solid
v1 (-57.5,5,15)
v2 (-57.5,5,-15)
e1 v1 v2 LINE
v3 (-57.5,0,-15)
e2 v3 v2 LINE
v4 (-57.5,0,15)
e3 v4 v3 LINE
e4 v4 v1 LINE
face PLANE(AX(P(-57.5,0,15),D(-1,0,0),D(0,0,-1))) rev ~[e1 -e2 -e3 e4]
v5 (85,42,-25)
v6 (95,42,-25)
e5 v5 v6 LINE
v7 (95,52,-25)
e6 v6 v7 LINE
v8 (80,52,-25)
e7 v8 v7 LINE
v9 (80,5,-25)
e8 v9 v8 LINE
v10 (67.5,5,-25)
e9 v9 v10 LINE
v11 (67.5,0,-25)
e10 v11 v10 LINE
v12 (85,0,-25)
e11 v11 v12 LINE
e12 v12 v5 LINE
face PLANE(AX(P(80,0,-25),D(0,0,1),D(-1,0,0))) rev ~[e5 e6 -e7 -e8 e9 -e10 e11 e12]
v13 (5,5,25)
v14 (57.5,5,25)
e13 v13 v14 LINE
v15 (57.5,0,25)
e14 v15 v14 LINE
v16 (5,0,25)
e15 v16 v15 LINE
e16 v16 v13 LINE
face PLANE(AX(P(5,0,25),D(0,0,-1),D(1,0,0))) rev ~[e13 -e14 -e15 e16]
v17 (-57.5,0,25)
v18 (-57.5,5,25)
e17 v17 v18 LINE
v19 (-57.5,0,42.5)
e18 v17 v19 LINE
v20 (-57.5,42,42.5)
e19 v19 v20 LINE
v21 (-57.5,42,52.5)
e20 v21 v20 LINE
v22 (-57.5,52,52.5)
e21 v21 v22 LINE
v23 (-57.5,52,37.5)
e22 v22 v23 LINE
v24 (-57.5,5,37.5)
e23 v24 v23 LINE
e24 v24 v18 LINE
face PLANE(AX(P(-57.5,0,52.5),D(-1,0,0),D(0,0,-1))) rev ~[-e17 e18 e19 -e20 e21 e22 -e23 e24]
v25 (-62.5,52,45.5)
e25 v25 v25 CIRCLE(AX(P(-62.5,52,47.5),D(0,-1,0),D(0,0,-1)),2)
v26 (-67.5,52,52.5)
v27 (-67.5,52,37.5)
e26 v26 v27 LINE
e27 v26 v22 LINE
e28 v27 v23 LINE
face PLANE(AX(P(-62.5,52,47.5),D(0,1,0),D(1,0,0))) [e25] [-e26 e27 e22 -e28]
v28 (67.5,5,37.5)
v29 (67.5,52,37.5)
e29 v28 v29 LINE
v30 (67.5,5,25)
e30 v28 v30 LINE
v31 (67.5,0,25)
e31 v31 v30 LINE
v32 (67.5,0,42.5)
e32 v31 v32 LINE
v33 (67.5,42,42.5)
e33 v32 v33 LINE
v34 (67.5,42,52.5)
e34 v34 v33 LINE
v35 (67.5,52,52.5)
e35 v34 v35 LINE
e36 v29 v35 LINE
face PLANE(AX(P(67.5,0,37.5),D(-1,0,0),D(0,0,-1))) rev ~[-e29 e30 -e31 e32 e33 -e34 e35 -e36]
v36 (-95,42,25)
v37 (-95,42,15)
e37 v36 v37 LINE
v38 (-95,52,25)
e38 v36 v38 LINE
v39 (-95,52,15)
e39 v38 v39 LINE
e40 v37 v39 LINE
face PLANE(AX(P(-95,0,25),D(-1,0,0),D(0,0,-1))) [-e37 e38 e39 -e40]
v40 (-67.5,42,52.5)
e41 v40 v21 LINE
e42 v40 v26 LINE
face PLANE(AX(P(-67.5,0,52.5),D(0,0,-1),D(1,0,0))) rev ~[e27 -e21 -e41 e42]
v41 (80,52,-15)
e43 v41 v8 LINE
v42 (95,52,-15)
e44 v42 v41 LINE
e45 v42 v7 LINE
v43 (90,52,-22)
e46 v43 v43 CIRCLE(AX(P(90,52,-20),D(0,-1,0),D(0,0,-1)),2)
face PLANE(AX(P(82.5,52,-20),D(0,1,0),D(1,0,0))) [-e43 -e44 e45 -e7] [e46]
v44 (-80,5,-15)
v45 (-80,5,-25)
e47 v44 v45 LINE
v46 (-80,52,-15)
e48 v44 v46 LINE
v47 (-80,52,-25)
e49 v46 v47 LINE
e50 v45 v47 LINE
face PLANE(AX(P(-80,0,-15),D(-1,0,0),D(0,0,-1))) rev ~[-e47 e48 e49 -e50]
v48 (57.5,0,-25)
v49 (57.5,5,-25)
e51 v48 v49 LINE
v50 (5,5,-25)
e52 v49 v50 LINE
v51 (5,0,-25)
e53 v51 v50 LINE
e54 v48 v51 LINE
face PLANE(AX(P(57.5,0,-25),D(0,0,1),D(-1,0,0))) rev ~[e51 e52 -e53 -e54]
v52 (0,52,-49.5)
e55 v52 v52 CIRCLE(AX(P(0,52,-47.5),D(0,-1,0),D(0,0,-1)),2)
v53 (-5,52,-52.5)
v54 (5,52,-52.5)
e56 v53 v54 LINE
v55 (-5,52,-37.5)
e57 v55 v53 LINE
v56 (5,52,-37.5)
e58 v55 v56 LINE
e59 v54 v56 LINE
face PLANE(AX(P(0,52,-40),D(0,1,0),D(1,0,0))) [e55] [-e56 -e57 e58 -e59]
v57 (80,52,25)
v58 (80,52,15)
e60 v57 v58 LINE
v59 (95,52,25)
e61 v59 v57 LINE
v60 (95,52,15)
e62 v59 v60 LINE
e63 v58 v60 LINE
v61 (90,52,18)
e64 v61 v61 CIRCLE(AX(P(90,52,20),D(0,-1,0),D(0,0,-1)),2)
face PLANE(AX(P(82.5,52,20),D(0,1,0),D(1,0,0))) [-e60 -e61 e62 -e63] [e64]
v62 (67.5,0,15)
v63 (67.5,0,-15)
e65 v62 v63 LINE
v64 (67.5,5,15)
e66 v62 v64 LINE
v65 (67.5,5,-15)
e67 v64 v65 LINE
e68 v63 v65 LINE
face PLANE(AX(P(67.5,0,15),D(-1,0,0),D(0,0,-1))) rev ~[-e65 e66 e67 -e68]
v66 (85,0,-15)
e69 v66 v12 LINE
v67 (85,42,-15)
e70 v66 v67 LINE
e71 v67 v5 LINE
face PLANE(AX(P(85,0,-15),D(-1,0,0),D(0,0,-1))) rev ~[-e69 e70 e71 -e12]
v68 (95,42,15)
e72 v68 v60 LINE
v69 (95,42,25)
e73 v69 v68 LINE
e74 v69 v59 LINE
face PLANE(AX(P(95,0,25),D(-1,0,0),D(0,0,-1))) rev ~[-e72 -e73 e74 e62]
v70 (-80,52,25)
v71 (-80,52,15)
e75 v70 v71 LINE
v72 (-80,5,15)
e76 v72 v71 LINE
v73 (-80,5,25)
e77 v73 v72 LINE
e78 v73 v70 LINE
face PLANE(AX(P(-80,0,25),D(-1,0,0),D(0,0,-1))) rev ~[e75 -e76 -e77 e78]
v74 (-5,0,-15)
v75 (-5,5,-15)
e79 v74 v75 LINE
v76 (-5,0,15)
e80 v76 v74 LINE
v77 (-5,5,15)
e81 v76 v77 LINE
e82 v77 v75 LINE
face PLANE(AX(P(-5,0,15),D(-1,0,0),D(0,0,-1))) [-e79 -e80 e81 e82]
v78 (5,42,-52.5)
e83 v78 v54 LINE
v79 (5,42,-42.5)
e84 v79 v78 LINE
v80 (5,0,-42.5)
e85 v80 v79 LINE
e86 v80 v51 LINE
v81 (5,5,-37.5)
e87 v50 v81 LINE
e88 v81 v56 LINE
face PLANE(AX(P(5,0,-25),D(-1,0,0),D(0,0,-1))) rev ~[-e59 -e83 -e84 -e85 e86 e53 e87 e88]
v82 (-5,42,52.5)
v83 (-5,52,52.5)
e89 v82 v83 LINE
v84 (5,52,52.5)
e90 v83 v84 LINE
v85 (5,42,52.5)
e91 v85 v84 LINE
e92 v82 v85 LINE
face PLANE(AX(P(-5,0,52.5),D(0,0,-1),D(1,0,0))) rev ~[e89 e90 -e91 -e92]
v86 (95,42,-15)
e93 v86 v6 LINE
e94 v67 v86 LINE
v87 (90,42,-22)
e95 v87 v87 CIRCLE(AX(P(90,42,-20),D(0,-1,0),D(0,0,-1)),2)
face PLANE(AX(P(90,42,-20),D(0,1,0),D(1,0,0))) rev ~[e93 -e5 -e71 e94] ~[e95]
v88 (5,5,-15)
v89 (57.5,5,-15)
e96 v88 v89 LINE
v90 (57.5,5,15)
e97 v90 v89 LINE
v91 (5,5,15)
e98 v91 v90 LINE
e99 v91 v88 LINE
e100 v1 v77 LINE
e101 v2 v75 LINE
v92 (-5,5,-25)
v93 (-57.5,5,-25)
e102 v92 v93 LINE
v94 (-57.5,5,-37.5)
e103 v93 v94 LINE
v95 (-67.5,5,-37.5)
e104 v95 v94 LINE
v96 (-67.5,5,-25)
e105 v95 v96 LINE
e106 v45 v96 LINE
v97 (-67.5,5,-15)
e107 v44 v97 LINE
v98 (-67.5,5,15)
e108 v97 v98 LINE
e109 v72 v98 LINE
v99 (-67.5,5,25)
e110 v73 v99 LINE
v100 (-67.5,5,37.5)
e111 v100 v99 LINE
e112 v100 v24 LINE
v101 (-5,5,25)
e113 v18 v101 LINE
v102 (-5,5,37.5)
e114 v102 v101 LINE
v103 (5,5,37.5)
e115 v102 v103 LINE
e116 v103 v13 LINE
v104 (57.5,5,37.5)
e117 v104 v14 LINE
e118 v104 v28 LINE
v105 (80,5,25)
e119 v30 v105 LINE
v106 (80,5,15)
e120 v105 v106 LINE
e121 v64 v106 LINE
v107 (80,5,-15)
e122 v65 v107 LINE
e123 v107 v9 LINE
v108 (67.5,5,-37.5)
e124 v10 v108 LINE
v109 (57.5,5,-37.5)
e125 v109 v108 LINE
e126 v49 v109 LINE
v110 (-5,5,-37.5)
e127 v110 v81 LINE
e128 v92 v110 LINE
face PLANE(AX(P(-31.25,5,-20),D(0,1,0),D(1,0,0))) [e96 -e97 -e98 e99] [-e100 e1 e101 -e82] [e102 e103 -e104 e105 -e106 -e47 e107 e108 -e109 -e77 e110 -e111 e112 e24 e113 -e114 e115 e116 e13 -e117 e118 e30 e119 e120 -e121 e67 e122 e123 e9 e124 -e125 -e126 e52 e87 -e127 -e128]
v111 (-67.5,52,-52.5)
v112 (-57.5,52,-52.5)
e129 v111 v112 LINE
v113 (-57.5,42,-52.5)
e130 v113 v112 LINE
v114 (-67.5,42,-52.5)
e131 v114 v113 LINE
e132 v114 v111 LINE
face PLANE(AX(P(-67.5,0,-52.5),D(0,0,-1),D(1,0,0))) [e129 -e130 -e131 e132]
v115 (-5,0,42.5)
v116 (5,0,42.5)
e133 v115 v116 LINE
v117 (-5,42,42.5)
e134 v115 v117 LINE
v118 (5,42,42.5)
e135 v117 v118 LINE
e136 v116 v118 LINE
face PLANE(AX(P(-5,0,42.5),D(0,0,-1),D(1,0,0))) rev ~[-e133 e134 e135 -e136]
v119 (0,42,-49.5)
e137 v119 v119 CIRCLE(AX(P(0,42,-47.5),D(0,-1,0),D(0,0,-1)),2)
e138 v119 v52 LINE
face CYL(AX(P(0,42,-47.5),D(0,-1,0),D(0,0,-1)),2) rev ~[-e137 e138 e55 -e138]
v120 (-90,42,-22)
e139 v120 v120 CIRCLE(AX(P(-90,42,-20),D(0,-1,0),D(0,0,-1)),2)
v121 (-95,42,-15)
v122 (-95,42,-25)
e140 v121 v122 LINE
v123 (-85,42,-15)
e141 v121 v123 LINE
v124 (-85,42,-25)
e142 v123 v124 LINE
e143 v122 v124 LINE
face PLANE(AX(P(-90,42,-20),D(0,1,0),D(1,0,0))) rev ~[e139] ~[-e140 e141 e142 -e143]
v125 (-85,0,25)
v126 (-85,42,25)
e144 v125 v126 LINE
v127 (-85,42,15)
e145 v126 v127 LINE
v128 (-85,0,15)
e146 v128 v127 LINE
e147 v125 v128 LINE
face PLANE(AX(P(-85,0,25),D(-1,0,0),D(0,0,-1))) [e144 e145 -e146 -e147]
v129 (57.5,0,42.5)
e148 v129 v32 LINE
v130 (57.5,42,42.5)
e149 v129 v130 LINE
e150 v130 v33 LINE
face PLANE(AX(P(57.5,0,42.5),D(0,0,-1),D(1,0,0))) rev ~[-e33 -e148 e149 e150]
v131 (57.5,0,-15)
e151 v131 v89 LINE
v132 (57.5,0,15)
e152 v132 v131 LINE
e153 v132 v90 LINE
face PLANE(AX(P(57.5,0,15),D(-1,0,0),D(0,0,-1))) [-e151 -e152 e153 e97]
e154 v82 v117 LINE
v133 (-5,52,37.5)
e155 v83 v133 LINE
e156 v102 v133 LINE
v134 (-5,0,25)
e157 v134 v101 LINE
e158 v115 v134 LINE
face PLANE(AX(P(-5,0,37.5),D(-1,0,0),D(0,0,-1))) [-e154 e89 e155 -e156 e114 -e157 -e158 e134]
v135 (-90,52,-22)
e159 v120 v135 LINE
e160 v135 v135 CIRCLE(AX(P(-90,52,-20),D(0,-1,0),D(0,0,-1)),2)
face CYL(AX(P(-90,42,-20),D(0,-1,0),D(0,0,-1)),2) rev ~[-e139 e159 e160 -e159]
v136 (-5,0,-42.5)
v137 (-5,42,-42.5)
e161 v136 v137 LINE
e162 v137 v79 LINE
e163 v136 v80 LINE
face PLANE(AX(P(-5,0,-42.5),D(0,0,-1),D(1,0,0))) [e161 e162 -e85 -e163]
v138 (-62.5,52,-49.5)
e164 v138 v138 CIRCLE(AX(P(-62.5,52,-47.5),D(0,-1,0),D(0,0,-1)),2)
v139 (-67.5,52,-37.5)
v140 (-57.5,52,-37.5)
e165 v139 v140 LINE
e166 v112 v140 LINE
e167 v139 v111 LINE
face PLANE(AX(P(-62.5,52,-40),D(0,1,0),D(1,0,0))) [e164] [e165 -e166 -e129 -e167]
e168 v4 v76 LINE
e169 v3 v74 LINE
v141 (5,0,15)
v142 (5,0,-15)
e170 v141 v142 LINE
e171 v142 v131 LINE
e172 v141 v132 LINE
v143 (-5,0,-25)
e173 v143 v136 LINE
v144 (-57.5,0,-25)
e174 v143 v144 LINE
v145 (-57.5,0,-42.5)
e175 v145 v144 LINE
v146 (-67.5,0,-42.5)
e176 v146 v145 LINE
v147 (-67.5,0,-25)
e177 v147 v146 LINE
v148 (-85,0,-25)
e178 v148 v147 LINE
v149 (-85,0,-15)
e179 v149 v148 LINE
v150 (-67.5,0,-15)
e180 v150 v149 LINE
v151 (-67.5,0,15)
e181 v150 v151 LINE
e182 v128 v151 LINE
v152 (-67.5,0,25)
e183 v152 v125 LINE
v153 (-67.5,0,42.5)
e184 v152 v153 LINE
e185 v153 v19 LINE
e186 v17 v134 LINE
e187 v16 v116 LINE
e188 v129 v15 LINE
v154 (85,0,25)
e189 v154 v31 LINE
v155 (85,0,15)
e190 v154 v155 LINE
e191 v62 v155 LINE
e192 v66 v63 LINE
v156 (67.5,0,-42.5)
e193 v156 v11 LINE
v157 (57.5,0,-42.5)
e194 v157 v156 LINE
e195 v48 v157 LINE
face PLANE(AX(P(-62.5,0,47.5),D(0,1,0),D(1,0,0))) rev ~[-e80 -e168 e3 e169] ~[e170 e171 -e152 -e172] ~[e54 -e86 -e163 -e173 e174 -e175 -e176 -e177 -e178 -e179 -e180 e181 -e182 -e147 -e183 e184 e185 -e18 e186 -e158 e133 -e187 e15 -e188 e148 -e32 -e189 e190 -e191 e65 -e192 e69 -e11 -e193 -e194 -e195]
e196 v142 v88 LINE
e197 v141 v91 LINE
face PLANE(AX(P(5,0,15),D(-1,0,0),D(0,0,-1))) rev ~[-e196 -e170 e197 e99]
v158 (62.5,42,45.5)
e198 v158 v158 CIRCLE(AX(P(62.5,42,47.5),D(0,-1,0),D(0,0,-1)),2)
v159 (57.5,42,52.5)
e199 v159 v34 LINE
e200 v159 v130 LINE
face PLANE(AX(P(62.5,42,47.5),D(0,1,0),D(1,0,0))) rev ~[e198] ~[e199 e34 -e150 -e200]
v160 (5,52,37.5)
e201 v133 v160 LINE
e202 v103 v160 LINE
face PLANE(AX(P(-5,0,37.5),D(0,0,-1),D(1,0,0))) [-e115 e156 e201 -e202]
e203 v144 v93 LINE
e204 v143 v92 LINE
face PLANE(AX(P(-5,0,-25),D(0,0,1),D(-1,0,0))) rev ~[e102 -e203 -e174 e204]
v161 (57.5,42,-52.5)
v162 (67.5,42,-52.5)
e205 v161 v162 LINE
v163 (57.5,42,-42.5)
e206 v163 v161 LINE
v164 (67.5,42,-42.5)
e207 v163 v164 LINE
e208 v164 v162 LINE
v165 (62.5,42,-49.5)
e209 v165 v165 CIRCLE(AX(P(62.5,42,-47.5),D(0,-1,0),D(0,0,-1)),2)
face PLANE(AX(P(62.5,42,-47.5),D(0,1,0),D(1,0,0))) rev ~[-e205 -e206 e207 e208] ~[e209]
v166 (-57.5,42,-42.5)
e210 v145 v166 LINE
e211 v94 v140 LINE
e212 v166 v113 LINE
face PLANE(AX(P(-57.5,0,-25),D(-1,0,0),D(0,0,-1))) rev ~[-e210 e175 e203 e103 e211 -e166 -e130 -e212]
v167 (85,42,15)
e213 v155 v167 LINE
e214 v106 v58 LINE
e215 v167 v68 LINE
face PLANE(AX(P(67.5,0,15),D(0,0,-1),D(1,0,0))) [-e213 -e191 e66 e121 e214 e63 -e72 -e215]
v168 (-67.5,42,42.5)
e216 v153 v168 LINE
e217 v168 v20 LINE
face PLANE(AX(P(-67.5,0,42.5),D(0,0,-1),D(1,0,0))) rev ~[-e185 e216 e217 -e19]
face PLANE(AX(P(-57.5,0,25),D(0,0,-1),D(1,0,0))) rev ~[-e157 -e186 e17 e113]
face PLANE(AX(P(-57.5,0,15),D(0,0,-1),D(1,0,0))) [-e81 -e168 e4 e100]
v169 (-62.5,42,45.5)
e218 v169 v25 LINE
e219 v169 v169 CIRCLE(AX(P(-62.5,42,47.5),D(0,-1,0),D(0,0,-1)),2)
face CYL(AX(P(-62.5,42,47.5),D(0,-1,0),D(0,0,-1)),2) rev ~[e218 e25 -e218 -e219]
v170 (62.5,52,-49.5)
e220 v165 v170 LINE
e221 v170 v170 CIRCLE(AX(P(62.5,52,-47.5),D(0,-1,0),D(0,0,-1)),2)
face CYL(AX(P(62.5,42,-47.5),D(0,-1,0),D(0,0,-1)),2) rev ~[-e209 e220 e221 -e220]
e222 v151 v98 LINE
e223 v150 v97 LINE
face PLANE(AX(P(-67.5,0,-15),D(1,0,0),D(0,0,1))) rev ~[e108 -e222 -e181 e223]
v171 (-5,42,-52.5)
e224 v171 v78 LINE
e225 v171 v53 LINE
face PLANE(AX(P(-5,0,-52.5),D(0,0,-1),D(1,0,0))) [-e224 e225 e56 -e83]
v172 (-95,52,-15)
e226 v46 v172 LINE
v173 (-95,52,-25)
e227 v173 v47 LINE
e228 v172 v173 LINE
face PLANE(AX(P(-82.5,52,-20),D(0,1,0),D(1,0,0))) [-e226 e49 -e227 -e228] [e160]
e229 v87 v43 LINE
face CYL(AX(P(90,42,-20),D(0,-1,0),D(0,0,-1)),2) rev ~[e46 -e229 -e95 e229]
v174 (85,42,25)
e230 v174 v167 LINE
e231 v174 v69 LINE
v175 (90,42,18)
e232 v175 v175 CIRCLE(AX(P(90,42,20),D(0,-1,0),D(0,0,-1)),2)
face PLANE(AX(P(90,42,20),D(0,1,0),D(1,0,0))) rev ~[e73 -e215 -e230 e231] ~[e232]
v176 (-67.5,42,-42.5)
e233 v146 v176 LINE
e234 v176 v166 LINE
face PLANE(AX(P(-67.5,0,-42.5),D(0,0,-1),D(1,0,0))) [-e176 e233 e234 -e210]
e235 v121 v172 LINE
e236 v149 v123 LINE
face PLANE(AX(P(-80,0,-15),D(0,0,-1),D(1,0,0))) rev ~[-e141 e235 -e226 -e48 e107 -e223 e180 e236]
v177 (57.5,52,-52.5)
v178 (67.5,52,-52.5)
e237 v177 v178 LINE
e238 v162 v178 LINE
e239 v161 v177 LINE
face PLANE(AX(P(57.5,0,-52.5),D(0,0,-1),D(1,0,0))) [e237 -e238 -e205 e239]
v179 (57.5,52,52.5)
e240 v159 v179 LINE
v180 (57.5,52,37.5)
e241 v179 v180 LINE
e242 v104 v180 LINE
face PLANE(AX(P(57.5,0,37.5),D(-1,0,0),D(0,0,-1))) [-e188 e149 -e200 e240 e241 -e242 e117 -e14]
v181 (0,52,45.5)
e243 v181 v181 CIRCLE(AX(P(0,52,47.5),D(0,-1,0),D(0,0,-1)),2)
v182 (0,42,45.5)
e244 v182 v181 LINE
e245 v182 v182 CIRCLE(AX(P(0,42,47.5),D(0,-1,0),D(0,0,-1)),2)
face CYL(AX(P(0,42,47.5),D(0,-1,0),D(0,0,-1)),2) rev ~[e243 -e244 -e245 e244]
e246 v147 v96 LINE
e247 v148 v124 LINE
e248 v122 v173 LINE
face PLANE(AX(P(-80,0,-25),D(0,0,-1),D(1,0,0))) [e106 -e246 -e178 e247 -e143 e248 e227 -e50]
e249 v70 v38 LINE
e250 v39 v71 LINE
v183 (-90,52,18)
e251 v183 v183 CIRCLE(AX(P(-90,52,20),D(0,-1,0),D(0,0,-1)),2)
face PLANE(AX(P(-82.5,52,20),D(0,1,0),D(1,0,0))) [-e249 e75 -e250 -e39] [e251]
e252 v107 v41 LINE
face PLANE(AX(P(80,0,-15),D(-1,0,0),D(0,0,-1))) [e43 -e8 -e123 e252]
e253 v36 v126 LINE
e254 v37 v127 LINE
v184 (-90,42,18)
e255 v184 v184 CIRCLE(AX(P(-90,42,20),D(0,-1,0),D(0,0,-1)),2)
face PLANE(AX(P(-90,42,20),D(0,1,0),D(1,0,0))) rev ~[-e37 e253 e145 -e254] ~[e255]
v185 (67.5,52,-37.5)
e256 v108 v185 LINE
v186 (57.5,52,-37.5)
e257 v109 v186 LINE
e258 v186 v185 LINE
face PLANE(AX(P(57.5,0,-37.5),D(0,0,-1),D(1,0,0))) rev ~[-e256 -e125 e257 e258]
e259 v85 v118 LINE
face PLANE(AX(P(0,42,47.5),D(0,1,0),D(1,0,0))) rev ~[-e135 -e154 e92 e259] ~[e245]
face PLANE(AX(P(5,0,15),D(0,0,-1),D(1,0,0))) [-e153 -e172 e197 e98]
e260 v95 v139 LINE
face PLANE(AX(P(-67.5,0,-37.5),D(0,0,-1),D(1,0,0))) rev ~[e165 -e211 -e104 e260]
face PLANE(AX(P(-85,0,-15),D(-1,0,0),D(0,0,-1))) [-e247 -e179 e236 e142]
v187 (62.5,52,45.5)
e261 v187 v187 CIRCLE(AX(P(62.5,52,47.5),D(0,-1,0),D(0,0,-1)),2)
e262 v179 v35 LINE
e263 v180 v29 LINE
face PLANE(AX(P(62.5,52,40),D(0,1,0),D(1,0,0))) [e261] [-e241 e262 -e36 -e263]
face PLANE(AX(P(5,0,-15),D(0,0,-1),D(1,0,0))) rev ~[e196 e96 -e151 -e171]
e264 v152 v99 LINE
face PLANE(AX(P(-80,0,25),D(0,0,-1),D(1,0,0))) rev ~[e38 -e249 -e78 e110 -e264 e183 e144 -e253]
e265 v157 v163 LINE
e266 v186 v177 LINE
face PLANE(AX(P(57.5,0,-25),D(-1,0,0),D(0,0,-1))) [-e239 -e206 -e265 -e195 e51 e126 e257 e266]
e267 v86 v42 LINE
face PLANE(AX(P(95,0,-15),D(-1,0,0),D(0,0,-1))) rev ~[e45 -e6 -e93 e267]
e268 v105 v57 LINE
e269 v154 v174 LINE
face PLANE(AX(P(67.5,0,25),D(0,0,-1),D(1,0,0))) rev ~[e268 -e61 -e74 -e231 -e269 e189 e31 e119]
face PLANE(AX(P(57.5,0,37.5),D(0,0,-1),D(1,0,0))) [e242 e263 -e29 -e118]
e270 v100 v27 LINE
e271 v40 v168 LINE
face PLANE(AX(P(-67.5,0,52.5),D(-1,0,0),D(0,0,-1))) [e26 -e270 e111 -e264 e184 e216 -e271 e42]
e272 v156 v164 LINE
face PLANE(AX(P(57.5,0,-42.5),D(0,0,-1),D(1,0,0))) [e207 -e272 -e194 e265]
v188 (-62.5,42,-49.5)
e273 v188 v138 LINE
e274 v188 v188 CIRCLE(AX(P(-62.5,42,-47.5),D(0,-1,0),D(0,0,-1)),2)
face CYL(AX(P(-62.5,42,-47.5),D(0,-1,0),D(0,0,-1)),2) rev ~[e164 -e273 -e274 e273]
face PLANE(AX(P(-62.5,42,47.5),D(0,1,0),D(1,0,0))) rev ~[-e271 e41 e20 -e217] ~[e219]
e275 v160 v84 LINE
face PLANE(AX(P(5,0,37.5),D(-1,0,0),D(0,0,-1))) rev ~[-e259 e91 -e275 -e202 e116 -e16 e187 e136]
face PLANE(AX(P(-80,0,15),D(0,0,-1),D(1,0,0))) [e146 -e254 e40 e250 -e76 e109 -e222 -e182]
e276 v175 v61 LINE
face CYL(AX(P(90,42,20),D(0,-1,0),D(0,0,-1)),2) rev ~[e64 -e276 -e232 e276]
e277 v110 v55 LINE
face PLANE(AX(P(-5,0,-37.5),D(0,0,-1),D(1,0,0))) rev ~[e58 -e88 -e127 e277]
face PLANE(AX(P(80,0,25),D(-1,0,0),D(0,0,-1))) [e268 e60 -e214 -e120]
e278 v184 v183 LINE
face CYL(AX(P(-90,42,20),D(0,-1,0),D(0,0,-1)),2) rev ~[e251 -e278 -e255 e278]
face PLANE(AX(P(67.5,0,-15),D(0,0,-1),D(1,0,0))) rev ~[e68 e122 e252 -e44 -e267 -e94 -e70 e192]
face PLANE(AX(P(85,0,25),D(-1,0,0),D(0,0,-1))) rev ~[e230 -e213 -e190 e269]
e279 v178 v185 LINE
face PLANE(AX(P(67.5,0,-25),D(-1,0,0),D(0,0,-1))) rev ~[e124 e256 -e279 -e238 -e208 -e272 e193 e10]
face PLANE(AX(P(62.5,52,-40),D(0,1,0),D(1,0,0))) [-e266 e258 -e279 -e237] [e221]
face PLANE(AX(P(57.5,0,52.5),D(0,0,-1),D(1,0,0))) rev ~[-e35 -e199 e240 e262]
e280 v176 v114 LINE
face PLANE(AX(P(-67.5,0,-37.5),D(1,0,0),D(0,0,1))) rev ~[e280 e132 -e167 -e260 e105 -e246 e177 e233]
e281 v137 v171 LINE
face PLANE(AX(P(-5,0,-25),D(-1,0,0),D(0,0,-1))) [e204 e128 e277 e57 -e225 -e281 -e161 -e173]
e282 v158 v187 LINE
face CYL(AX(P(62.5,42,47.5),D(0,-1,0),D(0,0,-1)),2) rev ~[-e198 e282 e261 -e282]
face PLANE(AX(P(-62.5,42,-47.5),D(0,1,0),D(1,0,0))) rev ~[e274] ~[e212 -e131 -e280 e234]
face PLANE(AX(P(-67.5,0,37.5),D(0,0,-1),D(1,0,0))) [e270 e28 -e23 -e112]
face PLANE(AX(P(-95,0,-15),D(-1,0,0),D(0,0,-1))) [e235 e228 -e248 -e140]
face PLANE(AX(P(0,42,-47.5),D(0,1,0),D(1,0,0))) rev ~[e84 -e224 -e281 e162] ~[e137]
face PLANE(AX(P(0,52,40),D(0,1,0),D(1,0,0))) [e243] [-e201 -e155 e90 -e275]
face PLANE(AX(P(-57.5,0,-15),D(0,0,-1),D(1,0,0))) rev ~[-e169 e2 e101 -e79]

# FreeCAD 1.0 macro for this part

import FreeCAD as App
import Part
import Sketcher
from FreeCAD import Vector
Q = App.Units.Quantity


def add_polygon(sketch, points):
    """Adds a closed chain of lines whose ends are joined by coincident constraints."""
    first, n = sketch.GeometryCount, len(points)
    for a, b in zip(points, points[1:] + points[:1]):
        sketch.addGeometry(Part.LineSegment(App.Vector(*a, 0), App.Vector(*b, 0)), False)
    for i in range(n):
        sketch.addConstraint(Sketcher.Constraint("Coincident", first + i, 2, first + (i + 1) % n, 1))

doc = App.newDocument("Part")
params = doc.addObject("Spreadsheet::Sheet", "Params")
for row, (alias, value) in enumerate([
    ("sketch1_width", "10 mm"),
    ("sketch1_height", "30 mm"),
    ("sketch1_width2", "52.5 mm"),
    ("sketch1_width3", "12.5 mm"),
    ("pad1_length", "5 mm"),
    ("sketch2_width", "10 mm"),
    ("sketch2_width2", "5 mm"),
    ("pad2_length", "52 mm"),
    ("sketch3_width", "10 mm"),
    ("pad3_length", "52 mm"),
    ("sketch4_width", "10 mm"),
    ("pocket1_length", "42 mm"),
    ("sketch5_diameter", "4 mm"),
    ("pocket2_length", "10 mm"),
], start=1):
    params.set(f"A{row}", alias)
    params.set(f"B{row}", "=" + value)
    params.setAlias(f"B{row}", alias)

body = doc.addObject("PartDesign::Body", "Body")

# Sketch on XZ plane
sketch1 = body.newObject("Sketcher::SketchObject", "Sketch")
sketch1.AttachmentSupport = (doc.getObject("XZ_Plane"), [""])
sketch1.MapMode = "FlatFace"
add_polygon(sketch1, [(-5, 25), (-5, 38), (5, 38), (5, 25), (58, 25), (58, 38), (68, 38), (68, 25), (80, 25), (80, 15), (68, 15), (68, -15), (80, -15), (80, -25), (68, -25), (68, -38), (58, -38), (58, -25), (5, -25), (5, -38), (-5, -38), (-5, -25), (-58, -25), (-58, -38), (-68, -38), (-68, -25), (-80, -25), (-80, -15), (-68, -15), (-68, 15), (-80, 15), (-80, 25), (-68, 25), (-68, 38), (-58, 38), (-58, 25)])  # lines 0-35
add_polygon(sketch1, [(-5, 15), (-58, 15), (-58, -15), (-5, -15)])  # lines 36-39
add_polygon(sketch1, [(58, 15), (5, 15), (5, -15), (58, -15)])  # lines 40-43
sketch1.addConstraint(Sketcher.Constraint("Vertical", 0))
sketch1.addConstraint(Sketcher.Constraint("Horizontal", 1))
sketch1.addConstraint(Sketcher.Constraint("Vertical", 2))
sketch1.addConstraint(Sketcher.Constraint("Horizontal", 3))
sketch1.addConstraint(Sketcher.Constraint("Vertical", 4))
sketch1.addConstraint(Sketcher.Constraint("Horizontal", 5))
sketch1.addConstraint(Sketcher.Constraint("Vertical", 6))
sketch1.addConstraint(Sketcher.Constraint("Horizontal", 7))
sketch1.addConstraint(Sketcher.Constraint("Vertical", 8))
sketch1.addConstraint(Sketcher.Constraint("Horizontal", 9))
sketch1.addConstraint(Sketcher.Constraint("Vertical", 10))
sketch1.addConstraint(Sketcher.Constraint("Horizontal", 11))
sketch1.addConstraint(Sketcher.Constraint("Vertical", 12))
sketch1.addConstraint(Sketcher.Constraint("Horizontal", 13))
sketch1.addConstraint(Sketcher.Constraint("Vertical", 14))
sketch1.addConstraint(Sketcher.Constraint("Horizontal", 15))
sketch1.addConstraint(Sketcher.Constraint("Vertical", 16))
sketch1.addConstraint(Sketcher.Constraint("Horizontal", 17))
sketch1.addConstraint(Sketcher.Constraint("Vertical", 18))
sketch1.addConstraint(Sketcher.Constraint("Horizontal", 19))
sketch1.addConstraint(Sketcher.Constraint("Vertical", 20))
sketch1.addConstraint(Sketcher.Constraint("Horizontal", 21))
sketch1.addConstraint(Sketcher.Constraint("Vertical", 22))
sketch1.addConstraint(Sketcher.Constraint("Horizontal", 23))
sketch1.addConstraint(Sketcher.Constraint("Vertical", 24))
sketch1.addConstraint(Sketcher.Constraint("Horizontal", 25))
sketch1.addConstraint(Sketcher.Constraint("Vertical", 26))
sketch1.addConstraint(Sketcher.Constraint("Horizontal", 27))
sketch1.addConstraint(Sketcher.Constraint("Vertical", 28))
sketch1.addConstraint(Sketcher.Constraint("Horizontal", 29))
sketch1.addConstraint(Sketcher.Constraint("Vertical", 30))
sketch1.addConstraint(Sketcher.Constraint("Horizontal", 31))
sketch1.addConstraint(Sketcher.Constraint("Vertical", 32))
sketch1.addConstraint(Sketcher.Constraint("Horizontal", 33))
sketch1.addConstraint(Sketcher.Constraint("Vertical", 34))
sketch1.addConstraint(Sketcher.Constraint("Horizontal", 35))
sketch1.addConstraint(Sketcher.Constraint("Horizontal", 36))
sketch1.addConstraint(Sketcher.Constraint("Vertical", 37))
sketch1.addConstraint(Sketcher.Constraint("Horizontal", 38))
sketch1.addConstraint(Sketcher.Constraint("Vertical", 39))
sketch1.addConstraint(Sketcher.Constraint("Horizontal", 40))
sketch1.addConstraint(Sketcher.Constraint("Vertical", 41))
sketch1.addConstraint(Sketcher.Constraint("Horizontal", 42))
sketch1.addConstraint(Sketcher.Constraint("Vertical", 43))
sketch1.addConstraint(Sketcher.Constraint("Symmetric", 0, 2, 18, 2, -1, 1))
sketch1.addConstraint(Sketcher.Constraint("Symmetric", 2, 2, 20, 2, -1, 1))
sketch1.addConstraint(Sketcher.Constraint("Symmetric", 4, 2, 22, 2, -1, 1))
sketch1.addConstraint(Sketcher.Constraint("Symmetric", 6, 2, 24, 2, -1, 1))
sketch1.addConstraint(Sketcher.Constraint("Symmetric", 8, 2, 26, 2, -1, 1))
sketch1.addConstraint(Sketcher.Constraint("Symmetric", 10, 2, 28, 2, -1, 1))
sketch1.addConstraint(Sketcher.Constraint("Symmetric", 12, 2, 30, 2, -1, 1))
sketch1.addConstraint(Sketcher.Constraint("Symmetric", 14, 2, 32, 2, -1, 1))
sketch1.addConstraint(Sketcher.Constraint("Symmetric", 16, 2, 34, 2, -1, 1))
sketch1.addConstraint(Sketcher.Constraint("Symmetric", 38, 2, 40, 2, -1, 1))
sketch1.addConstraint(Sketcher.Constraint("Symmetric", 36, 2, 42, 2, -1, 1))
sketch1.addConstraint(Sketcher.Constraint("Symmetric", 17, 2, 20, 2, -2))
sketch1.addConstraint(Sketcher.Constraint("Symmetric", 15, 2, 22, 2, -2))
sketch1.addConstraint(Sketcher.Constraint("Symmetric", 13, 2, 24, 2, -2))
sketch1.addConstraint(Sketcher.Constraint("Symmetric", 11, 2, 26, 2, -2))
sketch1.addConstraint(Sketcher.Constraint("Horizontal", 1, 2, 4, 2))
sketch1.addConstraint(Sketcher.Constraint("Horizontal", 3, 2, 6, 2))
sketch1.addConstraint(Sketcher.Constraint("Horizontal", 29, 2, 36, 2))
sketch1.addConstraint(Sketcher.Constraint("Horizontal", 27, 2, 37, 2))
sketch1.addConstraint(Sketcher.Constraint("Vertical", 6, 2, 9, 2))
sketch1.addConstraint(Sketcher.Constraint("Vertical", 34, 2, 36, 2))
sketch1.addConstraint(Sketcher.Constraint("Vertical", 35, 2, 38, 2))
sketch1.addConstraint(Sketcher.Constraint("Equal", 1, 5))
sketch1.addConstraint(Sketcher.Constraint("Equal", 31, 0))
sketch1.addConstraint(Sketcher.Constraint("Equal", 33, 8))
sketch1.addConstraint(Sketcher.Constraint("DistanceX", 1, 1, 1, 2, Q("10 mm")))
sketch1.addConstraint(Sketcher.Constraint("DistanceY", 10, 2, 10, 1, Q("30 mm")))
sketch1.addConstraint(Sketcher.Constraint("DistanceX", 3, 1, 3, 2, Q("52.5 mm")))
sketch1.addConstraint(Sketcher.Constraint("DistanceX", 7, 1, 7, 2, Q("12.5 mm")))
sketch1.setExpression("Constraints[113]", "Params.sketch1_width")
sketch1.setExpression("Constraints[114]", "Params.sketch1_height")
sketch1.setExpression("Constraints[115]", "Params.sketch1_width2")
sketch1.setExpression("Constraints[116]", "Params.sketch1_width3")
pad1 = body.newObject("PartDesign::Pad", "Pad")
pad1.Profile = sketch1
pad1.setExpression("Length", "Params.pad1_length")
pad1.Reversed = True

# Sketch on XZ plane
sketch2 = body.newObject("Sketcher::SketchObject", "Sketch001")
sketch2.AttachmentSupport = (doc.getObject("XZ_Plane"), [""])
sketch2.MapMode = "FlatFace"
add_polygon(sketch2, [(-68, 38), (-68, 42), (-58, 42), (-58, 38)])  # lines 0-3
add_polygon(sketch2, [(-5, 38), (-5, 42), (5, 42), (5, 38)])  # lines 4-7
add_polygon(sketch2, [(58, 38), (58, 42), (68, 42), (68, 38)])  # lines 8-11
add_polygon(sketch2, [(80, 15), (80, 25), (85, 25), (85, 15)])  # lines 12-15
add_polygon(sketch2, [(80, -25), (80, -15), (85, -15), (85, -25)])  # lines 16-19
add_polygon(sketch2, [(58, -42), (58, -38), (68, -38), (68, -42)])  # lines 20-23
add_polygon(sketch2, [(-5, -42), (-5, -38), (5, -38), (5, -42)])  # lines 24-27
add_polygon(sketch2, [(-68, -42), (-68, -38), (-58, -38), (-58, -42)])  # lines 28-31
add_polygon(sketch2, [(-85, -25), (-85, -15), (-80, -15), (-80, -25)])  # lines 32-35
add_polygon(sketch2, [(-85, 15), (-85, 25), (-80, 25), (-80, 15)])  # lines 36-39
sketch2.addConstraint(Sketcher.Constraint("Vertical", 0))
sketch2.addConstraint(Sketcher.Constraint("Horizontal", 1))
sketch2.addConstraint(Sketcher.Constraint("Vertical", 2))
sketch2.addConstraint(Sketcher.Constraint("Horizontal", 3))
sketch2.addConstraint(Sketcher.Constraint("Vertical", 4))
sketch2.addConstraint(Sketcher.Constraint("Horizontal", 5))
sketch2.addConstraint(Sketcher.Constraint("Vertical", 6))
sketch2.addConstraint(Sketcher.Constraint("Horizontal", 7))
sketch2.addConstraint(Sketcher.Constraint("Vertical", 8))
sketch2.addConstraint(Sketcher.Constraint("Horizontal", 9))
sketch2.addConstraint(Sketcher.Constraint("Vertical", 10))
sketch2.addConstraint(Sketcher.Constraint("Horizontal", 11))
sketch2.addConstraint(Sketcher.Constraint("Vertical", 12))
sketch2.addConstraint(Sketcher.Constraint("Horizontal", 13))
sketch2.addConstraint(Sketcher.Constraint("Vertical", 14))
sketch2.addConstraint(Sketcher.Constraint("Horizontal", 15))
sketch2.addConstraint(Sketcher.Constraint("Vertical", 16))
sketch2.addConstraint(Sketcher.Constraint("Horizontal", 17))
sketch2.addConstraint(Sketcher.Constraint("Vertical", 18))
sketch2.addConstraint(Sketcher.Constraint("Horizontal", 19))
sketch2.addConstraint(Sketcher.Constraint("Vertical", 20))
sketch2.addConstraint(Sketcher.Constraint("Horizontal", 21))
sketch2.addConstraint(Sketcher.Constraint("Vertical", 22))
sketch2.addConstraint(Sketcher.Constraint("Horizontal", 23))
sketch2.addConstraint(Sketcher.Constraint("Vertical", 24))
sketch2.addConstraint(Sketcher.Constraint("Horizontal", 25))
sketch2.addConstraint(Sketcher.Constraint("Vertical", 26))
sketch2.addConstraint(Sketcher.Constraint("Horizontal", 27))
sketch2.addConstraint(Sketcher.Constraint("Vertical", 28))
sketch2.addConstraint(Sketcher.Constraint("Horizontal", 29))
sketch2.addConstraint(Sketcher.Constraint("Vertical", 30))
sketch2.addConstraint(Sketcher.Constraint("Horizontal", 31))
sketch2.addConstraint(Sketcher.Constraint("Vertical", 32))
sketch2.addConstraint(Sketcher.Constraint("Horizontal", 33))
sketch2.addConstraint(Sketcher.Constraint("Vertical", 34))
sketch2.addConstraint(Sketcher.Constraint("Horizontal", 35))
sketch2.addConstraint(Sketcher.Constraint("Vertical", 36))
sketch2.addConstraint(Sketcher.Constraint("Horizontal", 37))
sketch2.addConstraint(Sketcher.Constraint("Vertical", 38))
sketch2.addConstraint(Sketcher.Constraint("Horizontal", 39))
sketch2.addConstraint(Sketcher.Constraint("Symmetric", 2, 2, 20, 2, -1, 1))
sketch2.addConstraint(Sketcher.Constraint("Symmetric", 0, 2, 22, 2, -1, 1))
sketch2.addConstraint(Sketcher.Constraint("Symmetric", 6, 2, 24, 2, -1, 1))
sketch2.addConstraint(Sketcher.Constraint("Symmetric", 4, 2, 26, 2, -1, 1))
sketch2.addConstraint(Sketcher.Constraint("Symmetric", 10, 2, 28, 2, -1, 1))
sketch2.addConstraint(Sketcher.Constraint("Symmetric", 8, 2, 30, 2, -1, 1))
sketch2.addConstraint(Sketcher.Constraint("Symmetric", 14, 2, 32, 2, -1, 1))
sketch2.addConstraint(Sketcher.Constraint("Symmetric", 12, 2, 34, 2, -1, 1))
sketch2.addConstraint(Sketcher.Constraint("Symmetric", 18, 2, 36, 2, -1, 1))
sketch2.addConstraint(Sketcher.Constraint("Symmetric", 16, 2, 38, 2, -1, 1))
sketch2.addConstraint(Sketcher.Constraint("Symmetric", 1, 2, 8, 2, -2))
sketch2.addConstraint(Sketcher.Constraint("Symmetric", 3, 2, 10, 2, -2))
sketch2.addConstraint(Sketcher.Constraint("Symmetric", 17, 2, 32, 2, -2))
sketch2.addConstraint(Sketcher.Constraint("Symmetric", 19, 2, 34, 2, -2))
sketch2.addConstraint(Sketcher.Constraint("Horizontal", 1, 2, 4, 2))
sketch2.addConstraint(Sketcher.Constraint("Horizontal", 3, 2, 6, 2))
sketch2.addConstraint(Sketcher.Constraint("Vertical", 7, 2, 24, 2))
sketch2.addConstraint(Sketcher.Constraint("Equal", 3, 5))
sketch2.addConstraint(Sketcher.Constraint("Equal", 39, 0))
sketch2.addConstraint(Sketcher.Constraint("Equal", 31, 12))
sketch2.addConstraint(Sketcher.Constraint("DistanceX", 1, 1, 1, 2, Q("10 mm")))
sketch2.addConstraint(Sketcher.Constraint("DistanceX", 13, 1, 13, 2, Q("5 mm")))
sketch2.addConstraint(Sketcher.Constraint("DistanceX", -1, 1, 12, 2, Q("80 mm")))
sketch2.addConstraint(Sketcher.Constraint("DistanceY", -1, 1, 12, 2, Q("25 mm")))
sketch2.addConstraint(Sketcher.Constraint("DistanceX", 1, 2, 8, 2, Q("115 mm")))
sketch2.addConstraint(Sketcher.Constraint("DistanceY", 24, 2, 7, 2, Q("75 mm")))
sketch2.setExpression("Constraints[100]", "Params.sketch2_width")
sketch2.setExpression("Constraints[101]", "Params.sketch2_width2")
pad2 = body.newObject("PartDesign::Pad", "Pad001")
pad2.Profile = sketch2
pad2.setExpression("Length", "Params.pad2_length")
pad2.Reversed = True

# Sketch on XZ plane
sketch3 = body.newObject("Sketcher::SketchObject", "Sketch002")
sketch3.AttachmentSupport = (doc.getObject("XZ_Plane"), [""])
sketch3.MapMode = "FlatFace"
add_polygon(sketch3, [(-68, 42), (-68, 52), (-58, 52), (-58, 42)])  # lines 0-3
add_polygon(sketch3, [(-95, 15), (-95, 25), (-85, 25), (-85, 15)])  # lines 4-7
add_polygon(sketch3, [(-95, -25), (-95, -15), (-85, -15), (-85, -25)])  # lines 8-11
add_polygon(sketch3, [(-68, -52), (-68, -42), (-58, -42), (-58, -52)])  # lines 12-15
add_polygon(sketch3, [(-5, -52), (-5, -42), (5, -42), (5, -52)])  # lines 16-19
add_polygon(sketch3, [(58, -52), (58, -42), (68, -42), (68, -52)])  # lines 20-23
add_polygon(sketch3, [(85, -25), (85, -15), (95, -15), (95, -25)])  # lines 24-27
add_polygon(sketch3, [(85, 15), (85, 25), (95, 25), (95, 15)])  # lines 28-31
add_polygon(sketch3, [(58, 42), (58, 52), (68, 52), (68, 42)])  # lines 32-35
add_polygon(sketch3, [(-5, 42), (-5, 52), (5, 52), (5, 42)])  # lines 36-39
sketch3.addConstraint(Sketcher.Constraint("Vertical", 0))
sketch3.addConstraint(Sketcher.Constraint("Horizontal", 1))
sketch3.addConstraint(Sketcher.Constraint("Vertical", 2))
sketch3.addConstraint(Sketcher.Constraint("Horizontal", 3))
sketch3.addConstraint(Sketcher.Constraint("Vertical", 4))
sketch3.addConstraint(Sketcher.Constraint("Horizontal", 5))
sketch3.addConstraint(Sketcher.Constraint("Vertical", 6))
sketch3.addConstraint(Sketcher.Constraint("Horizontal", 7))
sketch3.addConstraint(Sketcher.Constraint("Vertical", 8))
sketch3.addConstraint(Sketcher.Constraint("Horizontal", 9))
sketch3.addConstraint(Sketcher.Constraint("Vertical", 10))
sketch3.addConstraint(Sketcher.Constraint("Horizontal", 11))
sketch3.addConstraint(Sketcher.Constraint("Vertical", 12))
sketch3.addConstraint(Sketcher.Constraint("Horizontal", 13))
sketch3.addConstraint(Sketcher.Constraint("Vertical", 14))
sketch3.addConstraint(Sketcher.Constraint("Horizontal", 15))
sketch3.addConstraint(Sketcher.Constraint("Vertical", 16))
sketch3.addConstraint(Sketcher.Constraint("Horizontal", 17))
sketch3.addConstraint(Sketcher.Constraint("Vertical", 18))
sketch3.addConstraint(Sketcher.Constraint("Horizontal", 19))
sketch3.addConstraint(Sketcher.Constraint("Vertical", 20))
sketch3.addConstraint(Sketcher.Constraint("Horizontal", 21))
sketch3.addConstraint(Sketcher.Constraint("Vertical", 22))
sketch3.addConstraint(Sketcher.Constraint("Horizontal", 23))
sketch3.addConstraint(Sketcher.Constraint("Vertical", 24))
sketch3.addConstraint(Sketcher.Constraint("Horizontal", 25))
sketch3.addConstraint(Sketcher.Constraint("Vertical", 26))
sketch3.addConstraint(Sketcher.Constraint("Horizontal", 27))
sketch3.addConstraint(Sketcher.Constraint("Vertical", 28))
sketch3.addConstraint(Sketcher.Constraint("Horizontal", 29))
sketch3.addConstraint(Sketcher.Constraint("Vertical", 30))
sketch3.addConstraint(Sketcher.Constraint("Horizontal", 31))
sketch3.addConstraint(Sketcher.Constraint("Vertical", 32))
sketch3.addConstraint(Sketcher.Constraint("Horizontal", 33))
sketch3.addConstraint(Sketcher.Constraint("Vertical", 34))
sketch3.addConstraint(Sketcher.Constraint("Horizontal", 35))
sketch3.addConstraint(Sketcher.Constraint("Vertical", 36))
sketch3.addConstraint(Sketcher.Constraint("Horizontal", 37))
sketch3.addConstraint(Sketcher.Constraint("Vertical", 38))
sketch3.addConstraint(Sketcher.Constraint("Horizontal", 39))
sketch3.addConstraint(Sketcher.Constraint("Symmetric", 2, 2, 20, 2, -1, 1))
sketch3.addConstraint(Sketcher.Constraint("Symmetric", 0, 2, 22, 2, -1, 1))
sketch3.addConstraint(Sketcher.Constraint("Symmetric", 6, 2, 24, 2, -1, 1))
sketch3.addConstraint(Sketcher.Constraint("Symmetric", 4, 2, 26, 2, -1, 1))
sketch3.addConstraint(Sketcher.Constraint("Symmetric", 10, 2, 28, 2, -1, 1))
sketch3.addConstraint(Sketcher.Constraint("Symmetric", 8, 2, 30, 2, -1, 1))
sketch3.addConstraint(Sketcher.Constraint("Symmetric", 14, 2, 32, 2, -1, 1))
sketch3.addConstraint(Sketcher.Constraint("Symmetric", 12, 2, 34, 2, -1, 1))
sketch3.addConstraint(Sketcher.Constraint("Symmetric", 18, 2, 36, 2, -1, 1))
sketch3.addConstraint(Sketcher.Constraint("Symmetric", 16, 2, 38, 2, -1, 1))
sketch3.addConstraint(Sketcher.Constraint("Symmetric", 13, 2, 20, 2, -2))
sketch3.addConstraint(Sketcher.Constraint("Symmetric", 15, 2, 22, 2, -2))
sketch3.addConstraint(Sketcher.Constraint("Symmetric", 9, 2, 24, 2, -2))
sketch3.addConstraint(Sketcher.Constraint("Symmetric", 11, 2, 26, 2, -2))
sketch3.addConstraint(Sketcher.Constraint("Horizontal", 13, 2, 16, 2))
sketch3.addConstraint(Sketcher.Constraint("Horizontal", 15, 2, 18, 2))
sketch3.addConstraint(Sketcher.Constraint("Vertical", 19, 2, 36, 2))
sketch3.addConstraint(Sketcher.Constraint("Equal", 3, 5))
sketch3.addConstraint(Sketcher.Constraint("Equal", 15, 17))
sketch3.addConstraint(Sketcher.Constraint("Equal", 39, 0))
sketch3.addConstraint(Sketcher.Constraint("Equal", 2, 4))
sketch3.addConstraint(Sketcher.Constraint("DistanceX", 1, 1, 1, 2, Q("10 mm")))
sketch3.addConstraint(Sketcher.Constraint("DistanceX", 4, 2, -1, 1, Q("95 mm")))
sketch3.addConstraint(Sketcher.Constraint("DistanceY", -1, 1, 4, 2, Q("25 mm")))
sketch3.addConstraint(Sketcher.Constraint("DistanceX", 13, 2, 20, 2, Q("115 mm")))
sketch3.addConstraint(Sketcher.Constraint("DistanceY", -1, 1, 0, 2, Q("52.5 mm")))
sketch3.setExpression("Constraints[101]", "Params.sketch3_width")
pad3 = body.newObject("PartDesign::Pad", "Pad002")
pad3.Profile = sketch3
pad3.setExpression("Length", "Params.pad3_length")
pad3.Reversed = True

# Sketch on XZ plane
sketch4 = body.newObject("Sketcher::SketchObject", "Sketch003")
sketch4.AttachmentSupport = (doc.getObject("XZ_Plane"), [""])
sketch4.MapMode = "FlatFace"
add_polygon(sketch4, [(-68, 42), (-68, 52), (-58, 52), (-58, 42)])  # lines 0-3
add_polygon(sketch4, [(-95, 15), (-95, 25), (-85, 25), (-85, 15)])  # lines 4-7
add_polygon(sketch4, [(-95, -25), (-95, -15), (-85, -15), (-85, -25)])  # lines 8-11
add_polygon(sketch4, [(-68, -52), (-68, -42), (-58, -42), (-58, -52)])  # lines 12-15
add_polygon(sketch4, [(-5, -52), (-5, -42), (5, -42), (5, -52)])  # lines 16-19
add_polygon(sketch4, [(58, -52), (58, -42), (68, -42), (68, -52)])  # lines 20-23
add_polygon(sketch4, [(85, -25), (85, -15), (95, -15), (95, -25)])  # lines 24-27
add_polygon(sketch4, [(85, 15), (85, 25), (95, 25), (95, 15)])  # lines 28-31
add_polygon(sketch4, [(58, 42), (58, 52), (68, 52), (68, 42)])  # lines 32-35
add_polygon(sketch4, [(-5, 42), (-5, 52), (5, 52), (5, 42)])  # lines 36-39
sketch4.addConstraint(Sketcher.Constraint("Vertical", 0))
sketch4.addConstraint(Sketcher.Constraint("Horizontal", 1))
sketch4.addConstraint(Sketcher.Constraint("Vertical", 2))
sketch4.addConstraint(Sketcher.Constraint("Horizontal", 3))
sketch4.addConstraint(Sketcher.Constraint("Vertical", 4))
sketch4.addConstraint(Sketcher.Constraint("Horizontal", 5))
sketch4.addConstraint(Sketcher.Constraint("Vertical", 6))
sketch4.addConstraint(Sketcher.Constraint("Horizontal", 7))
sketch4.addConstraint(Sketcher.Constraint("Vertical", 8))
sketch4.addConstraint(Sketcher.Constraint("Horizontal", 9))
sketch4.addConstraint(Sketcher.Constraint("Vertical", 10))
sketch4.addConstraint(Sketcher.Constraint("Horizontal", 11))
sketch4.addConstraint(Sketcher.Constraint("Vertical", 12))
sketch4.addConstraint(Sketcher.Constraint("Horizontal", 13))
sketch4.addConstraint(Sketcher.Constraint("Vertical", 14))
sketch4.addConstraint(Sketcher.Constraint("Horizontal", 15))
sketch4.addConstraint(Sketcher.Constraint("Vertical", 16))
sketch4.addConstraint(Sketcher.Constraint("Horizontal", 17))
sketch4.addConstraint(Sketcher.Constraint("Vertical", 18))
sketch4.addConstraint(Sketcher.Constraint("Horizontal", 19))
sketch4.addConstraint(Sketcher.Constraint("Vertical", 20))
sketch4.addConstraint(Sketcher.Constraint("Horizontal", 21))
sketch4.addConstraint(Sketcher.Constraint("Vertical", 22))
sketch4.addConstraint(Sketcher.Constraint("Horizontal", 23))
sketch4.addConstraint(Sketcher.Constraint("Vertical", 24))
sketch4.addConstraint(Sketcher.Constraint("Horizontal", 25))
sketch4.addConstraint(Sketcher.Constraint("Vertical", 26))
sketch4.addConstraint(Sketcher.Constraint("Horizontal", 27))
sketch4.addConstraint(Sketcher.Constraint("Vertical", 28))
sketch4.addConstraint(Sketcher.Constraint("Horizontal", 29))
sketch4.addConstraint(Sketcher.Constraint("Vertical", 30))
sketch4.addConstraint(Sketcher.Constraint("Horizontal", 31))
sketch4.addConstraint(Sketcher.Constraint("Vertical", 32))
sketch4.addConstraint(Sketcher.Constraint("Horizontal", 33))
sketch4.addConstraint(Sketcher.Constraint("Vertical", 34))
sketch4.addConstraint(Sketcher.Constraint("Horizontal", 35))
sketch4.addConstraint(Sketcher.Constraint("Vertical", 36))
sketch4.addConstraint(Sketcher.Constraint("Horizontal", 37))
sketch4.addConstraint(Sketcher.Constraint("Vertical", 38))
sketch4.addConstraint(Sketcher.Constraint("Horizontal", 39))
sketch4.addConstraint(Sketcher.Constraint("Symmetric", 2, 2, 20, 2, -1, 1))
sketch4.addConstraint(Sketcher.Constraint("Symmetric", 0, 2, 22, 2, -1, 1))
sketch4.addConstraint(Sketcher.Constraint("Symmetric", 6, 2, 24, 2, -1, 1))
sketch4.addConstraint(Sketcher.Constraint("Symmetric", 4, 2, 26, 2, -1, 1))
sketch4.addConstraint(Sketcher.Constraint("Symmetric", 10, 2, 28, 2, -1, 1))
sketch4.addConstraint(Sketcher.Constraint("Symmetric", 8, 2, 30, 2, -1, 1))
sketch4.addConstraint(Sketcher.Constraint("Symmetric", 14, 2, 32, 2, -1, 1))
sketch4.addConstraint(Sketcher.Constraint("Symmetric", 12, 2, 34, 2, -1, 1))
sketch4.addConstraint(Sketcher.Constraint("Symmetric", 18, 2, 36, 2, -1, 1))
sketch4.addConstraint(Sketcher.Constraint("Symmetric", 16, 2, 38, 2, -1, 1))
sketch4.addConstraint(Sketcher.Constraint("Symmetric", 13, 2, 20, 2, -2))
sketch4.addConstraint(Sketcher.Constraint("Symmetric", 15, 2, 22, 2, -2))
sketch4.addConstraint(Sketcher.Constraint("Symmetric", 9, 2, 24, 2, -2))
sketch4.addConstraint(Sketcher.Constraint("Symmetric", 11, 2, 26, 2, -2))
sketch4.addConstraint(Sketcher.Constraint("Horizontal", 13, 2, 16, 2))
sketch4.addConstraint(Sketcher.Constraint("Horizontal", 15, 2, 18, 2))
sketch4.addConstraint(Sketcher.Constraint("Vertical", 19, 2, 36, 2))
sketch4.addConstraint(Sketcher.Constraint("Equal", 3, 5))
sketch4.addConstraint(Sketcher.Constraint("Equal", 15, 17))
sketch4.addConstraint(Sketcher.Constraint("Equal", 39, 0))
sketch4.addConstraint(Sketcher.Constraint("Equal", 2, 4))
sketch4.addConstraint(Sketcher.Constraint("DistanceX", 1, 1, 1, 2, Q("10 mm")))
sketch4.addConstraint(Sketcher.Constraint("DistanceX", 4, 2, -1, 1, Q("95 mm")))
sketch4.addConstraint(Sketcher.Constraint("DistanceY", -1, 1, 4, 2, Q("25 mm")))
sketch4.addConstraint(Sketcher.Constraint("DistanceX", 13, 2, 20, 2, Q("115 mm")))
sketch4.addConstraint(Sketcher.Constraint("DistanceY", -1, 1, 0, 2, Q("52.5 mm")))
sketch4.setExpression("Constraints[101]", "Params.sketch4_width")
pocket1 = body.newObject("PartDesign::Pocket", "Pocket")
pocket1.Profile = sketch4
pocket1.setExpression("Length", "Params.pocket1_length")

# Sketch on XZ plane
sketch5 = body.newObject("Sketcher::SketchObject", "Sketch004")
sketch5.AttachmentSupport = (doc.getObject("XZ_Plane"), [""])
sketch5.MapMode = "FlatFace"
sketch5.AttachmentOffset = App.Placement(Vector(0, 0, -42), App.Rotation())
sketch5.addGeometry(Part.Circle(Vector(-62.5, -47.5, 0), Vector(0, 0, 1), 2), False)
sketch5.addGeometry(Part.Circle(Vector(-90, -20, 0), Vector(0, 0, 1), 2), False)
sketch5.addGeometry(Part.Circle(Vector(0, -47.5, 0), Vector(0, 0, 1), 2), False)
sketch5.addGeometry(Part.Circle(Vector(62.5, -47.5, 0), Vector(0, 0, 1), 2), False)
sketch5.addGeometry(Part.Circle(Vector(90, -20, 0), Vector(0, 0, 1), 2), False)
sketch5.addGeometry(Part.Circle(Vector(90, 20, 0), Vector(0, 0, 1), 2), False)
sketch5.addGeometry(Part.Circle(Vector(62.5, 47.5, 0), Vector(0, 0, 1), 2), False)
sketch5.addGeometry(Part.Circle(Vector(0, 47.5, 0), Vector(0, 0, 1), 2), False)
sketch5.addGeometry(Part.Circle(Vector(-90, 20, 0), Vector(0, 0, 1), 2), False)
sketch5.addGeometry(Part.Circle(Vector(-62.5, 47.5, 0), Vector(0, 0, 1), 2), False)
sketch5.addConstraint(Sketcher.Constraint("Equal", 0, 1))
sketch5.addConstraint(Sketcher.Constraint("Equal", 1, 2))
sketch5.addConstraint(Sketcher.Constraint("Equal", 2, 3))
sketch5.addConstraint(Sketcher.Constraint("Equal", 3, 4))
sketch5.addConstraint(Sketcher.Constraint("Equal", 4, 5))
sketch5.addConstraint(Sketcher.Constraint("Equal", 5, 6))
sketch5.addConstraint(Sketcher.Constraint("Equal", 6, 7))
sketch5.addConstraint(Sketcher.Constraint("Equal", 7, 8))
sketch5.addConstraint(Sketcher.Constraint("Equal", 8, 9))
sketch5.addConstraint(Sketcher.Constraint("Symmetric", 1, 3, 5, 3, -1, 1))
sketch5.addConstraint(Sketcher.Constraint("Symmetric", 0, 3, 6, 3, -1, 1))
sketch5.addConstraint(Sketcher.Constraint("Symmetric", 2, 3, 7, 3, -1, 1))
sketch5.addConstraint(Sketcher.Constraint("Symmetric", 4, 3, 8, 3, -1, 1))
sketch5.addConstraint(Sketcher.Constraint("Symmetric", 3, 3, 9, 3, -1, 1))
sketch5.addConstraint(Sketcher.Constraint("Symmetric", 0, 3, 3, 3, -2))
sketch5.addConstraint(Sketcher.Constraint("Symmetric", 1, 3, 4, 3, -2))
sketch5.addConstraint(Sketcher.Constraint("PointOnObject", 2, 3, -2))
sketch5.addConstraint(Sketcher.Constraint("Horizontal", 0, 3, 2, 3))
sketch5.addConstraint(Sketcher.Constraint("Diameter", 0, Q("4 mm")))
sketch5.addConstraint(Sketcher.Constraint("DistanceX", 1, 3, -1, 1, Q("90 mm")))
sketch5.addConstraint(Sketcher.Constraint("DistanceY", 1, 3, -1, 1, Q("20 mm")))
sketch5.addConstraint(Sketcher.Constraint("DistanceX", 0, 3, 3, 3, Q("125 mm")))
sketch5.addConstraint(Sketcher.Constraint("DistanceY", 3, 3, 6, 3, Q("95 mm")))
sketch5.setExpression("Constraints[18]", "Params.sketch5_diameter")
pocket2 = body.newObject("PartDesign::Pocket", "Pocket001")
pocket2.Profile = sketch5
pocket2.setExpression("Length", "Params.pocket2_length")

doc.recompute()
